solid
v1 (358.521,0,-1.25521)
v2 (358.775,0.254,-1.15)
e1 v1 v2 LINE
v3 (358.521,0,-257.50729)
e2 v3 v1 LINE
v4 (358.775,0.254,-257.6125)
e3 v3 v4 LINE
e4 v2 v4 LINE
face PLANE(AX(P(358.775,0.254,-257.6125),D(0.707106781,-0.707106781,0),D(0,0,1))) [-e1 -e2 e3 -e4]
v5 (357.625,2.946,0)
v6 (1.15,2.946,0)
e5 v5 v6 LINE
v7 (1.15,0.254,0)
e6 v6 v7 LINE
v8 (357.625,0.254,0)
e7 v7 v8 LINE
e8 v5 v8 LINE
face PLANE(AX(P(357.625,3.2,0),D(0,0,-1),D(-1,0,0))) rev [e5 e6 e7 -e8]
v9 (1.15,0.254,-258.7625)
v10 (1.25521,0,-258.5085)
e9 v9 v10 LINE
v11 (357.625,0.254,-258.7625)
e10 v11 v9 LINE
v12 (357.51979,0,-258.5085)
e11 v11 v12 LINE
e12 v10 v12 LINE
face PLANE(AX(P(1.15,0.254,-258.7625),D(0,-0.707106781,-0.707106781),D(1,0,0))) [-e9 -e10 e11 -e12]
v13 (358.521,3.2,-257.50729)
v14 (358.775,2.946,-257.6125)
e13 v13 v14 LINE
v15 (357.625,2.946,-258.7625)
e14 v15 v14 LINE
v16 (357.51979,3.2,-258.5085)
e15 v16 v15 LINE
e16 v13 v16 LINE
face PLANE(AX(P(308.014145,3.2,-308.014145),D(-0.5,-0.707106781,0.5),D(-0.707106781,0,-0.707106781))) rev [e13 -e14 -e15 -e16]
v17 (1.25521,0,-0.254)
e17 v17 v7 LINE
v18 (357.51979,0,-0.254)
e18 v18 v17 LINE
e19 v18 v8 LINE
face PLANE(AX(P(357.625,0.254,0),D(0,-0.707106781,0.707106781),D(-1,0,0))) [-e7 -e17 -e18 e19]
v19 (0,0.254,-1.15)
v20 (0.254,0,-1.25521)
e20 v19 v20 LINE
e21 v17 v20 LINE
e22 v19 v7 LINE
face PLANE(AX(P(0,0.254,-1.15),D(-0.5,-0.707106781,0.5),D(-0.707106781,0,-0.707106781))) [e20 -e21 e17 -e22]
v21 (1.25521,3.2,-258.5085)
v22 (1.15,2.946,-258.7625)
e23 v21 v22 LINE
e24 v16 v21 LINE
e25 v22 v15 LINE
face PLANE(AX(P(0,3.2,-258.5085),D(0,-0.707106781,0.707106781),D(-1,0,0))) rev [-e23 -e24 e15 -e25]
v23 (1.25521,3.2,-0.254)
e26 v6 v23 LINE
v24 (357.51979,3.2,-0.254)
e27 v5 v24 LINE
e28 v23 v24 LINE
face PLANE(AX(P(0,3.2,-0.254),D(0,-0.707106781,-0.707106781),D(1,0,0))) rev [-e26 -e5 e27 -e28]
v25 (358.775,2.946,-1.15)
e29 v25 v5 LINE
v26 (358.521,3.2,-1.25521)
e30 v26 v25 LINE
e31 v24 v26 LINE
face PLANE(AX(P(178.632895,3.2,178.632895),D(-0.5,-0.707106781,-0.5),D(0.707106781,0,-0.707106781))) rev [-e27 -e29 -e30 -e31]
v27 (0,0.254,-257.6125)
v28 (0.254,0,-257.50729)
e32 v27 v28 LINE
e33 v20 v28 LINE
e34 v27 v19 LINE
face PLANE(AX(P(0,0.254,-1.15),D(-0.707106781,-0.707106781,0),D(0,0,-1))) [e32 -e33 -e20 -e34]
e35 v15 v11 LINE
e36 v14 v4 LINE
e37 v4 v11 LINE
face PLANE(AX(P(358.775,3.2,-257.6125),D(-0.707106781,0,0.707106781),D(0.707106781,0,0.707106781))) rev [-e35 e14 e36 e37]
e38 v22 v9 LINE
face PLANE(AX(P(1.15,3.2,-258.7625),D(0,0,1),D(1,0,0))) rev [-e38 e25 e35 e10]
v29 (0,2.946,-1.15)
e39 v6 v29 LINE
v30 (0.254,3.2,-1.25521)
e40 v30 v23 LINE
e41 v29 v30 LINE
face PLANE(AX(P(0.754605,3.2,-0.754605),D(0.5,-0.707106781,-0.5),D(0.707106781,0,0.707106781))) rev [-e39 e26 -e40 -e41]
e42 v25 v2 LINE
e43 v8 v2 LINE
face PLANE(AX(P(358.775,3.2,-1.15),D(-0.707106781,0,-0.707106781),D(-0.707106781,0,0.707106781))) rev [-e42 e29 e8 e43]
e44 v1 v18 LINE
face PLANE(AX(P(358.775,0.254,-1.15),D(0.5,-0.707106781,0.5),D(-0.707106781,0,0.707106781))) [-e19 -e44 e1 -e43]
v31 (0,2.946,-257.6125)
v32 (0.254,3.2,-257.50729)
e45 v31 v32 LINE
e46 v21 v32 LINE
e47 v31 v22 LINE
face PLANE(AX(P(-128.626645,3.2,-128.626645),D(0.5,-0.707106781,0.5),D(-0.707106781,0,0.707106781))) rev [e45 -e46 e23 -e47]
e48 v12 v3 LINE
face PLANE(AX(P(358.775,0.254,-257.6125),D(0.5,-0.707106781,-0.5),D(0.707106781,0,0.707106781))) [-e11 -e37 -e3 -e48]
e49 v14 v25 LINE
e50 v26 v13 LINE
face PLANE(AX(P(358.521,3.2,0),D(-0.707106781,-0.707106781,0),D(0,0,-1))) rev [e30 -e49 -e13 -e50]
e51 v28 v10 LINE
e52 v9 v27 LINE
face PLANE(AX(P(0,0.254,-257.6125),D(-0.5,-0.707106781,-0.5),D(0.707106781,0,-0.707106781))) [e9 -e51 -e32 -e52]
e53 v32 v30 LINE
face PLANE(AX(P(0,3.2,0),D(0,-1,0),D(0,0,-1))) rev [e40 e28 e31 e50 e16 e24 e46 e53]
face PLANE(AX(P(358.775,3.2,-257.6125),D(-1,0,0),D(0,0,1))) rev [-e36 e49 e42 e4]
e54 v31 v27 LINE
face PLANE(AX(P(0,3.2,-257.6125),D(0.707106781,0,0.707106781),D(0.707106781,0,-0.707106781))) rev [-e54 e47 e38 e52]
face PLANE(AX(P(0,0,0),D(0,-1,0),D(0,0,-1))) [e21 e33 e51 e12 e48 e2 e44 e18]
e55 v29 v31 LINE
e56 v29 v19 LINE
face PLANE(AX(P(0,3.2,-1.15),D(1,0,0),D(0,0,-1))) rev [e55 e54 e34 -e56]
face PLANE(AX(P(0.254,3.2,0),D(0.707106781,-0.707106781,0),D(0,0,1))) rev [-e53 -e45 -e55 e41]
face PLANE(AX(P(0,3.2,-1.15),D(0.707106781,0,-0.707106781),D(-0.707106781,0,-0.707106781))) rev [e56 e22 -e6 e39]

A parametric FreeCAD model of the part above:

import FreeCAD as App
import Part
import Sketcher
Q = App.Units.Quantity


def edges_at(feature, points):
    """Names of the edges that pass closest to the given points."""
    edges = feature.Shape.Edges
    near = lambda p: min(range(len(edges)), key=lambda i: edges[i].distToShape(Part.Vertex(*p))[0])
    return sorted({f"Edge{near(p) + 1}" for p in points})

doc = App.newDocument("Part")
params = doc.addObject("Spreadsheet::Sheet", "Params")
for row, (alias, value) in enumerate([
    ("pad1_length", "3.2 mm"),
    ("chamfer_size", "0.254 mm"),
], start=1):
    params.set(f"A{row}", alias)
    params.set(f"B{row}", "=" + value)
    params.setAlias(f"B{row}", alias)

body = doc.addObject("PartDesign::Body", "Body")

sketch1 = doc.addObject("Sketcher::SketchObject", "Sketch")
body.addObject(sketch1)
sketch1.AttachmentSupport = (doc.XZ_Plane, [""])
sketch1.MapMode = "FlatFace"
sketch1.addGeometry(Part.LineSegment(App.Vector(1.1, -258.8, 0), App.Vector(0, -257.6, 0)), False)
sketch1.addGeometry(Part.LineSegment(App.Vector(0, -257.6, 0), App.Vector(0, -1.1, 0)), False)
sketch1.addGeometry(Part.LineSegment(App.Vector(0, -1.1, 0), App.Vector(1.1, 0, 0)), False)
sketch1.addGeometry(Part.LineSegment(App.Vector(1.1, 0, 0), App.Vector(357.6, 0, 0)), False)
sketch1.addGeometry(Part.LineSegment(App.Vector(357.6, 0, 0), App.Vector(358.8, -1.1, 0)), False)
sketch1.addGeometry(Part.LineSegment(App.Vector(358.8, -1.1, 0), App.Vector(358.8, -257.6, 0)), False)
sketch1.addGeometry(Part.LineSegment(App.Vector(358.8, -257.6, 0), App.Vector(357.6, -258.8, 0)), False)
sketch1.addGeometry(Part.LineSegment(App.Vector(357.6, -258.8, 0), App.Vector(1.1, -258.8, 0)), False)
sketch1.addConstraint(Sketcher.Constraint("Coincident", 0, 2, 1, 1))
sketch1.addConstraint(Sketcher.Constraint("Coincident", 1, 2, 2, 1))
sketch1.addConstraint(Sketcher.Constraint("Coincident", 2, 2, 3, 1))
sketch1.addConstraint(Sketcher.Constraint("Coincident", 3, 2, 4, 1))
sketch1.addConstraint(Sketcher.Constraint("Coincident", 4, 2, 5, 1))
sketch1.addConstraint(Sketcher.Constraint("Coincident", 5, 2, 6, 1))
sketch1.addConstraint(Sketcher.Constraint("Coincident", 6, 2, 7, 1))
sketch1.addConstraint(Sketcher.Constraint("Coincident", 7, 2, 0, 1))
sketch1.addConstraint(Sketcher.Constraint("Vertical", 1))
sketch1.addConstraint(Sketcher.Constraint("Horizontal", 3))
sketch1.addConstraint(Sketcher.Constraint("Vertical", 5))
sketch1.addConstraint(Sketcher.Constraint("Horizontal", 7))
sketch1.addConstraint(Sketcher.Constraint("PointOnObject", 0, 2, -2))
sketch1.addConstraint(Sketcher.Constraint("PointOnObject", 2, 2, -1))
sketch1.addConstraint(Sketcher.Constraint("Perpendicular", 0, 2))
sketch1.addConstraint(Sketcher.Constraint("Perpendicular", 2, 4))
sketch1.addConstraint(Sketcher.Constraint("Perpendicular", 4, 6))
sketch1.addConstraint(Sketcher.Constraint("Horizontal", 1, 2, 4, 2))
sketch1.addConstraint(Sketcher.Constraint("Horizontal", 0, 2, 5, 2))
sketch1.addConstraint(Sketcher.Constraint("Vertical", 3, 2, 6, 2))
sketch1.addConstraint(Sketcher.Constraint("Vertical", 2, 2, 7, 2))
sketch1.addConstraint(Sketcher.Constraint("DistanceX", 3, 1, 3, 2, Q("356.475 mm")))
sketch1.addConstraint(Sketcher.Constraint("DistanceY", 1, 2, -1, 1, Q("1.15 mm")))
sketch1.addConstraint(Sketcher.Constraint("DistanceY", 1, 1, 1, 2, Q("256.4625 mm")))
pad1 = doc.addObject("PartDesign::Pad", "Pad")
body.addObject(pad1)
pad1.Profile = sketch1
pad1.setExpression("Length", "Params.pad1_length")
pad1.Reversed = True
doc.recompute()

chamfer = doc.addObject("PartDesign::Chamfer", "Chamfer")
body.addObject(chamfer)
chamfer.Base = (pad1, edges_at(pad1, [
    (179.387, 3.2, 0),
    (0.575, 0, -0.575),
    (0, 0, -129.381),
    (358.2, 3.2, -0.575),
    (358.775, 3.2, -129.381),
    (358.2, 3.2, -258.188),
    (179.387, 3.2, -258.762),
    (0.575, 3.2, -258.188),
    (0, 3.2, -129.381),
    (0.575, 3.2, -0.575),
    (0.575, 0, -258.188),
    (179.387, 0, -258.762),
    (358.2, 0, -258.188),
    (358.775, 0, -129.381),
    (358.2, 0, -0.575),
    (179.387, 0, 0),
]))
chamfer.setExpression("Size", "Params.chamfer_size")

doc.recompute()
